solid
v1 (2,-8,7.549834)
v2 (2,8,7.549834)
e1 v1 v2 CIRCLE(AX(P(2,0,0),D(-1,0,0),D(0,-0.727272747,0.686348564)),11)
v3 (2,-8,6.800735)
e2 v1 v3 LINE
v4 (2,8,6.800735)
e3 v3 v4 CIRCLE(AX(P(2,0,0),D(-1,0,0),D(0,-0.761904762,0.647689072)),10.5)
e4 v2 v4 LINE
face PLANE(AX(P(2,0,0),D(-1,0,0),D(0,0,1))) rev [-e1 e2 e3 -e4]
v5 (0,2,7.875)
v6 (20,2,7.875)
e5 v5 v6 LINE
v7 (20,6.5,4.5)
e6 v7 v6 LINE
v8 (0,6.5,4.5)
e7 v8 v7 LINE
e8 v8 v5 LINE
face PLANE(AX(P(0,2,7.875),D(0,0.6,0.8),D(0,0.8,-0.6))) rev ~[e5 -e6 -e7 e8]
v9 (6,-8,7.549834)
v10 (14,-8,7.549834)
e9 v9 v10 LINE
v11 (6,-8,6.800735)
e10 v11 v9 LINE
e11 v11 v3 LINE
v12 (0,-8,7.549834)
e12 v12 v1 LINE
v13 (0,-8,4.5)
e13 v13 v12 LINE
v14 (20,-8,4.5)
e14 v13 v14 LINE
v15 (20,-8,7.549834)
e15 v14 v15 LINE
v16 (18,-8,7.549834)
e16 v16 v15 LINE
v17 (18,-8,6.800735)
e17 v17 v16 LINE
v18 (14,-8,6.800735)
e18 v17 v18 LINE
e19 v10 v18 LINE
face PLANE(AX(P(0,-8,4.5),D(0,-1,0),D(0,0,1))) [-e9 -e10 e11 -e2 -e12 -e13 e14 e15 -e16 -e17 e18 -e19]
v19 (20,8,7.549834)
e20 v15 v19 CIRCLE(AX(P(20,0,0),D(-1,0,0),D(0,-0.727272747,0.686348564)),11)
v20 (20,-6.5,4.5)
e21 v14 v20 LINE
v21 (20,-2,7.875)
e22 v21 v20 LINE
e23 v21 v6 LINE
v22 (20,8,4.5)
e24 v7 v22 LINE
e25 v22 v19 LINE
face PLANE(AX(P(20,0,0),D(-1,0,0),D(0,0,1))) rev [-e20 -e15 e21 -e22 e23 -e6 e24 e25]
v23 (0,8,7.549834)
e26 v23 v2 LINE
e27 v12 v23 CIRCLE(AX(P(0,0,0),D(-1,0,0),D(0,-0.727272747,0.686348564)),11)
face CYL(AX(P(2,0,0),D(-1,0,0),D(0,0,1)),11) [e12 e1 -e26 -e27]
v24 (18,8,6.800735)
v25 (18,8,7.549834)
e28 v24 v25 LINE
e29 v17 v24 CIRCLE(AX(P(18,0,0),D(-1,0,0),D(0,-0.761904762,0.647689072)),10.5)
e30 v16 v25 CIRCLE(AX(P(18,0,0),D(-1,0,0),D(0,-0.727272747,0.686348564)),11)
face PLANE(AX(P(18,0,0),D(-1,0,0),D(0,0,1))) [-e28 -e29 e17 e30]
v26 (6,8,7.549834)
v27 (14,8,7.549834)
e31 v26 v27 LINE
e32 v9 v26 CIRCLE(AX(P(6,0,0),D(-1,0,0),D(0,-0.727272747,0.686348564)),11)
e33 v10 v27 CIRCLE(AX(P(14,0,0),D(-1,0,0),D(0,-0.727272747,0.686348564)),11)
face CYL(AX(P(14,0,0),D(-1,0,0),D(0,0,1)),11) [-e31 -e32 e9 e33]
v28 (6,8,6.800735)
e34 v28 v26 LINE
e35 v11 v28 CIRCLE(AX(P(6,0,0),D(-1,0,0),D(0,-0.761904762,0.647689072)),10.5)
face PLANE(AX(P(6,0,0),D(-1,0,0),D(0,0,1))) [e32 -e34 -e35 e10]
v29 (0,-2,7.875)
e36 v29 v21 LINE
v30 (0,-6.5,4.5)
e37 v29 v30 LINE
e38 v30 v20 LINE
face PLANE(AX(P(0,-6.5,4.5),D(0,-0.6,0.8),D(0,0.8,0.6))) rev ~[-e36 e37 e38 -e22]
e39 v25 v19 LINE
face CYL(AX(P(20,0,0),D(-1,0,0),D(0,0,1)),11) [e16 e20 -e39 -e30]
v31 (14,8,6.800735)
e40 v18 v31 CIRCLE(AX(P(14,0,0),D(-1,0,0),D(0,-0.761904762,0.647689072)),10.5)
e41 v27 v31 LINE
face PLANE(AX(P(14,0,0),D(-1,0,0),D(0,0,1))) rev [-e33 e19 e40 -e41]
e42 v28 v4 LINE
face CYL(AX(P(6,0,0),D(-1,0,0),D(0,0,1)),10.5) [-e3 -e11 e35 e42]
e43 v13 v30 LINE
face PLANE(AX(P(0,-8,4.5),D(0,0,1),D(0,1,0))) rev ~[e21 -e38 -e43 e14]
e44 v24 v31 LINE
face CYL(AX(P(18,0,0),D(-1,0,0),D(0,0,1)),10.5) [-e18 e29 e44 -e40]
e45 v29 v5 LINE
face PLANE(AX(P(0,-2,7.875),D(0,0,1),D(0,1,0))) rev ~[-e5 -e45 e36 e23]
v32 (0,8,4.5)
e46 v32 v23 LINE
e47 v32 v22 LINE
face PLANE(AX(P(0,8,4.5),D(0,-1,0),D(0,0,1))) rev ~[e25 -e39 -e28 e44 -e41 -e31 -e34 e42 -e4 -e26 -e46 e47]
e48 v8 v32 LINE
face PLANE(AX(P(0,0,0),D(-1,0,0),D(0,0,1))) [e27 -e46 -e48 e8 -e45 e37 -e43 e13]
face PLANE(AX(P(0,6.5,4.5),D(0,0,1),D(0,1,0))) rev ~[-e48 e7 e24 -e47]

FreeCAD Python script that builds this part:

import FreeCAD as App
import Part
import Sketcher

V = App.Vector
Q = App.Units.Quantity

doc = App.newDocument("Part")
body = doc.addObject("PartDesign::Body", "Body")

# Sketch on XZ plane
sketch1 = body.newObject("Sketcher::SketchObject", "Sketch")
sketch1.AttachmentSupport = (doc.getObject("XZ_Plane"), [""])
sketch1.MapMode = "FlatFace"
sketch1.addGeometry([
    Part.LineSegment(V(0, 11, 0), V(0, 7.5, 0)),  # 0
    Part.LineSegment(V(0, 7.5, 0), V(20, 7.5, 0)),  # 1
    Part.LineSegment(V(20, 7.5, 0), V(20, 11, 0)),  # 2
    Part.LineSegment(V(20, 11, 0), V(18, 11, 0)),  # 3
    Part.LineSegment(V(18, 11, 0), V(18, 10.5, 0)),  # 4
    Part.LineSegment(V(18, 10.5, 0), V(14, 10.5, 0)),  # 5
    Part.LineSegment(V(14, 10.5, 0), V(14, 11, 0)),  # 6
    Part.LineSegment(V(14, 11, 0), V(6, 11, 0)),  # 7
    Part.LineSegment(V(6, 11, 0), V(6, 10.5, 0)),  # 8
    Part.LineSegment(V(6, 10.5, 0), V(2, 10.5, 0)),  # 9
    Part.LineSegment(V(2, 10.5, 0), V(2, 11, 0)),  # 10
    Part.LineSegment(V(2, 11, 0), V(0, 11, 0)),  # 11
], False)
sketch1.addConstraint([
    Sketcher.Constraint("Coincident", 0, 2, 1, 1),
    Sketcher.Constraint("Coincident", 1, 2, 2, 1),
    Sketcher.Constraint("Coincident", 2, 2, 3, 1),
    Sketcher.Constraint("Coincident", 3, 2, 4, 1),
    Sketcher.Constraint("Coincident", 4, 2, 5, 1),
    Sketcher.Constraint("Coincident", 5, 2, 6, 1),
    Sketcher.Constraint("Coincident", 6, 2, 7, 1),
    Sketcher.Constraint("Coincident", 7, 2, 8, 1),
    Sketcher.Constraint("Coincident", 8, 2, 9, 1),
    Sketcher.Constraint("Coincident", 9, 2, 10, 1),
    Sketcher.Constraint("Coincident", 10, 2, 11, 1),
    Sketcher.Constraint("Coincident", 11, 2, 0, 1),
    Sketcher.Constraint("Vertical", 0),
    Sketcher.Constraint("Horizontal", 1),
    Sketcher.Constraint("Vertical", 2),
    Sketcher.Constraint("Horizontal", 3),
    Sketcher.Constraint("Vertical", 4),
    Sketcher.Constraint("Horizontal", 5),
    Sketcher.Constraint("Vertical", 6),
    Sketcher.Constraint("Horizontal", 7),
    Sketcher.Constraint("Vertical", 8),
    Sketcher.Constraint("Horizontal", 9),
    Sketcher.Constraint("Vertical", 10),
    Sketcher.Constraint("Horizontal", 11),
    Sketcher.Constraint("PointOnObject", 0, 2, -2),
    Sketcher.Constraint("Horizontal", 3, 2, 6, 2),
    Sketcher.Constraint("Horizontal", 5, 2, 8, 2),
    Sketcher.Constraint("Horizontal", 7, 2, 10, 2),
    Sketcher.Constraint("Equal", 5, 9),
    Sketcher.Constraint("Equal", 3, 11),
    Sketcher.Constraint("DistanceX", 1, 1, 1, 2, Q("20 mm")),
    Sketcher.Constraint("DistanceX", 3, 2, 3, 1, Q("2 mm")),
    Sketcher.Constraint("DistanceX", 5, 2, 5, 1, Q("4 mm")),
    Sketcher.Constraint("DistanceY", 0, 2, 0, 1, Q("3.5 mm")),
    Sketcher.Constraint("DistanceY", 4, 2, 4, 1, Q("0.5 mm")),
    Sketcher.Constraint("DistanceY", -1, 1, 2, 2, Q("11 mm")),
])
revolution = body.newObject("PartDesign::Revolution", "Revolution")
revolution.Profile = sketch1
revolution.ReferenceAxis = (sketch1, ["H_Axis"])
revolution.Angle = 360

# Sketch on YZ plane
sketch2 = body.newObject("Sketcher::SketchObject", "Sketch001")
sketch2.AttachmentSupport = (doc.getObject("YZ_Plane"), [""])
sketch2.MapMode = "FlatFace"
sketch2.addGeometry([
    Part.LineSegment(V(11, 7.5, 0), V(11, -11, 0)),  # 0
    Part.LineSegment(V(11, -11, 0), V(-11, -11, 0)),  # 1
    Part.LineSegment(V(-11, -11, 0), V(-11, 7.5, 0)),  # 2
    Part.LineSegment(V(-11, 7.5, 0), V(-8, 7.5, 0)),  # 3
    Part.LineSegment(V(-8, 7.5, 0), V(-8, 4.5, 0)),  # 4
    Part.LineSegment(V(-8, 4.5, 0), V(-6.5, 4.5, 0)),  # 5
    Part.LineSegment(V(-6.5, 4.5, 0), V(-2, 7.9, 0)),  # 6
    Part.LineSegment(V(-2, 7.9, 0), V(2, 7.9, 0)),  # 7
    Part.LineSegment(V(2, 7.9, 0), V(6.5, 4.5, 0)),  # 8
    Part.LineSegment(V(6.5, 4.5, 0), V(8, 4.5, 0)),  # 9
    Part.LineSegment(V(8, 4.5, 0), V(8, 7.5, 0)),  # 10
    Part.LineSegment(V(8, 7.5, 0), V(11, 7.5, 0)),  # 11
], False)
sketch2.addConstraint([
    Sketcher.Constraint("Coincident", 0, 2, 1, 1),
    Sketcher.Constraint("Coincident", 1, 2, 2, 1),
    Sketcher.Constraint("Coincident", 2, 2, 3, 1),
    Sketcher.Constraint("Coincident", 3, 2, 4, 1),
    Sketcher.Constraint("Coincident", 4, 2, 5, 1),
    Sketcher.Constraint("Coincident", 5, 2, 6, 1),
    Sketcher.Constraint("Coincident", 6, 2, 7, 1),
    Sketcher.Constraint("Coincident", 7, 2, 8, 1),
    Sketcher.Constraint("Coincident", 8, 2, 9, 1),
    Sketcher.Constraint("Coincident", 9, 2, 10, 1),
    Sketcher.Constraint("Coincident", 10, 2, 11, 1),
    Sketcher.Constraint("Coincident", 11, 2, 0, 1),
    Sketcher.Constraint("Vertical", 0),
    Sketcher.Constraint("Horizontal", 1),
    Sketcher.Constraint("Vertical", 2),
    Sketcher.Constraint("Horizontal", 3),
    Sketcher.Constraint("Vertical", 4),
    Sketcher.Constraint("Horizontal", 5),
    Sketcher.Constraint("Horizontal", 7),
    Sketcher.Constraint("Horizontal", 9),
    Sketcher.Constraint("Vertical", 10),
    Sketcher.Constraint("Horizontal", 11),
    Sketcher.Constraint("Symmetric", 5, 2, 8, 2, -2),
    Sketcher.Constraint("Symmetric", 3, 2, 10, 2, -2),
    Sketcher.Constraint("Equal", 3, 11),
    Sketcher.Constraint("Equal", 6, 8),
    Sketcher.Constraint("DistanceX", 1, 2, 1, 1, Q("22 mm")),
    Sketcher.Constraint("DistanceX", 3, 1, 3, 2, Q("3 mm")),
    Sketcher.Constraint("DistanceX", 7, 1, 7, 2, Q("4 mm")),
    Sketcher.Constraint("DistanceX", 5, 1, 5, 2, Q("1.5 mm")),
    Sketcher.Constraint("DistanceY", 0, 2, -1, 1, Q("11 mm")),
    Sketcher.Constraint("DistanceY", -1, 1, 4, 2, Q("4.5 mm")),
    Sketcher.Constraint("Distance", 6, Q("5.625 mm")),
    Sketcher.Constraint("DistanceY", 0, 2, 0, 1, Q("18.549834 mm")),
])
pocket1 = body.newObject("PartDesign::Pocket", "Pocket")
pocket1.Profile = sketch2
pocket1.Type = "ThroughAll"
pocket1.Reversed = True

doc.recompute()
